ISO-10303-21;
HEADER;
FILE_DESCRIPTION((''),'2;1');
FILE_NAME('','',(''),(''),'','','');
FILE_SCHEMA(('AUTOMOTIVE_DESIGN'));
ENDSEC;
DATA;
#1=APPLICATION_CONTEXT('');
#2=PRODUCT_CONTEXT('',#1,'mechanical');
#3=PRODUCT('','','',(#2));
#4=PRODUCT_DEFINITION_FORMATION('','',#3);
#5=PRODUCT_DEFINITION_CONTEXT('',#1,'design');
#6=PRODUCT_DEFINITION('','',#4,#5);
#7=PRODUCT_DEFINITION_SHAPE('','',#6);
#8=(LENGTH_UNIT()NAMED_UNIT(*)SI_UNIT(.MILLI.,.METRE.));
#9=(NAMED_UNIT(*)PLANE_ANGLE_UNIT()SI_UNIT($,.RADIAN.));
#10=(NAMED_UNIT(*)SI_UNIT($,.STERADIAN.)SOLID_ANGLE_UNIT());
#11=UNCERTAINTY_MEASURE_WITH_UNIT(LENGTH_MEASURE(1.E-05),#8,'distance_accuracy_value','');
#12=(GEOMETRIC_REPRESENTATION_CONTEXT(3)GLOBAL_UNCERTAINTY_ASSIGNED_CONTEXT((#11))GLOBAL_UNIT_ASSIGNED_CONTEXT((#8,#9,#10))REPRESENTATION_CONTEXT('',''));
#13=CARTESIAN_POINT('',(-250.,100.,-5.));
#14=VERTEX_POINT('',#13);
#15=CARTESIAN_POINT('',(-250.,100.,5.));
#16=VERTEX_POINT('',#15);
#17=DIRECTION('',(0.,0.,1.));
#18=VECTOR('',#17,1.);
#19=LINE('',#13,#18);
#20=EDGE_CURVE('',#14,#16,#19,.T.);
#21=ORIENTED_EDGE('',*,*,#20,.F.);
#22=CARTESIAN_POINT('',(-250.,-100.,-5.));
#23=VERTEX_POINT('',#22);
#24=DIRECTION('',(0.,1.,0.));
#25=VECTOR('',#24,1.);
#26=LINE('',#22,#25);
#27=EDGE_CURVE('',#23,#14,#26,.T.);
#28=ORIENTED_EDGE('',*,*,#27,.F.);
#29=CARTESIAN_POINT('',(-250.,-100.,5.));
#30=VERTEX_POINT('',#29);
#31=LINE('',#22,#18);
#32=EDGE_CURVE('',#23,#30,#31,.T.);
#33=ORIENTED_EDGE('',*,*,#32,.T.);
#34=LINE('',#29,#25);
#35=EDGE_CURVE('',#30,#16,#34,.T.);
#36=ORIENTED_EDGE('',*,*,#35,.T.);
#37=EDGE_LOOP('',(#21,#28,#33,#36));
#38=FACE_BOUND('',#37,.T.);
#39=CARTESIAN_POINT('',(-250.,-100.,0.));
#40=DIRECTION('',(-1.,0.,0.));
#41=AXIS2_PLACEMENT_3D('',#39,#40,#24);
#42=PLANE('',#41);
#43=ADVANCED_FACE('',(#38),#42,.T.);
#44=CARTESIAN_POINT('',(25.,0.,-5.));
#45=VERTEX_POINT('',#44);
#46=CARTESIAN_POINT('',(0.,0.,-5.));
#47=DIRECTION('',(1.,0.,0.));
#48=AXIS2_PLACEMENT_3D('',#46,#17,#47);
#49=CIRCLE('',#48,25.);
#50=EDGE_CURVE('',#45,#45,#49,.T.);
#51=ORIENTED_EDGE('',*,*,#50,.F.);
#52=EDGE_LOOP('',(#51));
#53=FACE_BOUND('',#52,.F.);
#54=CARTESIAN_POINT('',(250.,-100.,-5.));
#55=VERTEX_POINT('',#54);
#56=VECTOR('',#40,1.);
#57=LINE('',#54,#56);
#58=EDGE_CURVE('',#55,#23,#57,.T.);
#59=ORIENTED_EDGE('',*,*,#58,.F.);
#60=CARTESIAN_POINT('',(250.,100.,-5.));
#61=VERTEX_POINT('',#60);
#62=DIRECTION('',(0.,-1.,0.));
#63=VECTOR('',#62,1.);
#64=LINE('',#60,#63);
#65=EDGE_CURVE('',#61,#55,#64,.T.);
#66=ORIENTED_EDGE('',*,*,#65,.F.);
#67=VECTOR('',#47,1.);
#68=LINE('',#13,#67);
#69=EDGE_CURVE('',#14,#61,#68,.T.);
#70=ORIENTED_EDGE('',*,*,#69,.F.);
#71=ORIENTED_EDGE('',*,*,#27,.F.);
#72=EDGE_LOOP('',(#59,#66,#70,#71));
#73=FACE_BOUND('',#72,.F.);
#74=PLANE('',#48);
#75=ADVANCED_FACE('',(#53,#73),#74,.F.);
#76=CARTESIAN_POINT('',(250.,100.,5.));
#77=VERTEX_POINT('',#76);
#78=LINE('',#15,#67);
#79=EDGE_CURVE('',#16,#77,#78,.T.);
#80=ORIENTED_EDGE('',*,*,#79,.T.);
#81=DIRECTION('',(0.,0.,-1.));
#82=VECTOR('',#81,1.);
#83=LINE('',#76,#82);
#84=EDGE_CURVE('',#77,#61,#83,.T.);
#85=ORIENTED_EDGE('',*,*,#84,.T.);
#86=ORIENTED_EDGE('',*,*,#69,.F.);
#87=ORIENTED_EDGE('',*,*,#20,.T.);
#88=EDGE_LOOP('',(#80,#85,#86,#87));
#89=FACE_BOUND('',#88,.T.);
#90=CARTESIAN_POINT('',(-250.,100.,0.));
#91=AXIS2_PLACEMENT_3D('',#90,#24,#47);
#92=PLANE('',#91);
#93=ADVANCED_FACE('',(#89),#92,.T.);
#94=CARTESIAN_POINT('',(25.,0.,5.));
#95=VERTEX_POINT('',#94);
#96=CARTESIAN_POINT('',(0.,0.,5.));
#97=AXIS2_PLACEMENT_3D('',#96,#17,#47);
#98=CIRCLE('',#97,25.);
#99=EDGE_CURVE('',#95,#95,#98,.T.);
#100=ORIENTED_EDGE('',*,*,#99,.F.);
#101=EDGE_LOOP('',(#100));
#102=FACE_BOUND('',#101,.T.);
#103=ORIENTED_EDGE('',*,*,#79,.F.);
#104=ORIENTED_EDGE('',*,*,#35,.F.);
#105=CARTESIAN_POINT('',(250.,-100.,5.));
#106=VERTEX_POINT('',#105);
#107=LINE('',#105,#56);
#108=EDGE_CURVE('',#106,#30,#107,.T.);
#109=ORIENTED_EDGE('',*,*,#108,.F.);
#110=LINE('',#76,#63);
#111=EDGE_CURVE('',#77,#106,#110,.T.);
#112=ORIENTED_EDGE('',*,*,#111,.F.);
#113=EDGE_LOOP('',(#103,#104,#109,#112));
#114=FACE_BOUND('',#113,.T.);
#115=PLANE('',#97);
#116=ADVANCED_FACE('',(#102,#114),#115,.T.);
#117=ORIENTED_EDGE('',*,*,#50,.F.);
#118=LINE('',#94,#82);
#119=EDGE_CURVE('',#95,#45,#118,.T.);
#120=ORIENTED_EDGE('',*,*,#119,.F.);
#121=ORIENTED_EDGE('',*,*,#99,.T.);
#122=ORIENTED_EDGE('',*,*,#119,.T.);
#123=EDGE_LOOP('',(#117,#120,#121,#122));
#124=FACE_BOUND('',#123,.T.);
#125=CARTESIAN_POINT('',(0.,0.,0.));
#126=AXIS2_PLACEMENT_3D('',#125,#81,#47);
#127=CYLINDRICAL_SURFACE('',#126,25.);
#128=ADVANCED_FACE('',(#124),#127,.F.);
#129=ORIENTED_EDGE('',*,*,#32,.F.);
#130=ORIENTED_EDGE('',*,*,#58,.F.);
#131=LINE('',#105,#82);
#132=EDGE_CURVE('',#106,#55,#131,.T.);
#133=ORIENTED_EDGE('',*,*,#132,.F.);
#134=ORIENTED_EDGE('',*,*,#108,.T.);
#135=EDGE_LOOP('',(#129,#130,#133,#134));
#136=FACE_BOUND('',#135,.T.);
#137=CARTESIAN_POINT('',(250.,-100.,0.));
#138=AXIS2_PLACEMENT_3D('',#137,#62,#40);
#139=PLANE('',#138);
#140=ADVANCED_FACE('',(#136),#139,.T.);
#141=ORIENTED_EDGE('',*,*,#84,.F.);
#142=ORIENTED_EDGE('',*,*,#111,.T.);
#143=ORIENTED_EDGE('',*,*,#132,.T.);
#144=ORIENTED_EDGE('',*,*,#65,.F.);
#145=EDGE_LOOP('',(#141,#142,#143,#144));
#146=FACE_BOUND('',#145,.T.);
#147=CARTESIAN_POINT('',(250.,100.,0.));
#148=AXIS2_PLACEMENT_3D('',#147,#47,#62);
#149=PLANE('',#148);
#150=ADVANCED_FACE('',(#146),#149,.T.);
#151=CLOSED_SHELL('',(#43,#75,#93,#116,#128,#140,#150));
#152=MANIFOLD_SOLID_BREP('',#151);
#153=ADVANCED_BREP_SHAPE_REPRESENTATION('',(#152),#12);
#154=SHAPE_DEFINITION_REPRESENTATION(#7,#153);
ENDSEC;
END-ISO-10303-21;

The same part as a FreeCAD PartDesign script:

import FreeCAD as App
import Part
import Sketcher

V = App.Vector


def add_polygon(sketch, points):
    """Adds a closed chain of lines whose ends are joined by coincident constraints."""
    first, n = sketch.GeometryCount, len(points)
    for a, b in zip(points, points[1:] + points[:1]):
        sketch.addGeometry(Part.LineSegment(App.Vector(*a, 0), App.Vector(*b, 0)), False)
    for i in range(n):
        sketch.addConstraint(Sketcher.Constraint("Coincident", first + i, 2, first + (i + 1) % n, 1))

doc = App.newDocument("Part")
body = doc.addObject("PartDesign::Body", "Body")

# Sketch on XY plane
sketch1 = body.newObject("Sketcher::SketchObject", "Sketch")
sketch1.AttachmentSupport = (doc.getObject("XY_Plane"), [""])
sketch1.MapMode = "FlatFace"
add_polygon(sketch1, [(250, 100), (-250, 100), (-250, -100), (250, -100)])  # lines 0-3
sketch1.addGeometry(Part.Circle(V(0, 0, 0), V(0, 0, 1), 25), False)  # 4
sketch1.addConstraint(Sketcher.Constraint("Horizontal", 0))
sketch1.addConstraint(Sketcher.Constraint("Vertical", 1))
sketch1.addConstraint(Sketcher.Constraint("Horizontal", 2))
sketch1.addConstraint(Sketcher.Constraint("Vertical", 3))
sketch1.addConstraint(Sketcher.Constraint("Coincident", 4, 3, -1, 1))
sketch1.addConstraint(Sketcher.Constraint("Symmetric", 0, 2, 2, 2, -1, 1))
sketch1.addConstraint(Sketcher.Constraint("Diameter", 4, 50.0))
sketch1.addConstraint(Sketcher.Constraint("DistanceX", 0, 2, 0, 1, 500.0))
sketch1.addConstraint(Sketcher.Constraint("DistanceY", 1, 2, 1, 1, 200.0))
pad1 = body.newObject("PartDesign::Pad", "Pad")
pad1.Profile = sketch1
pad1.Length = 10
pad1.Midplane = True

doc.recompute()
